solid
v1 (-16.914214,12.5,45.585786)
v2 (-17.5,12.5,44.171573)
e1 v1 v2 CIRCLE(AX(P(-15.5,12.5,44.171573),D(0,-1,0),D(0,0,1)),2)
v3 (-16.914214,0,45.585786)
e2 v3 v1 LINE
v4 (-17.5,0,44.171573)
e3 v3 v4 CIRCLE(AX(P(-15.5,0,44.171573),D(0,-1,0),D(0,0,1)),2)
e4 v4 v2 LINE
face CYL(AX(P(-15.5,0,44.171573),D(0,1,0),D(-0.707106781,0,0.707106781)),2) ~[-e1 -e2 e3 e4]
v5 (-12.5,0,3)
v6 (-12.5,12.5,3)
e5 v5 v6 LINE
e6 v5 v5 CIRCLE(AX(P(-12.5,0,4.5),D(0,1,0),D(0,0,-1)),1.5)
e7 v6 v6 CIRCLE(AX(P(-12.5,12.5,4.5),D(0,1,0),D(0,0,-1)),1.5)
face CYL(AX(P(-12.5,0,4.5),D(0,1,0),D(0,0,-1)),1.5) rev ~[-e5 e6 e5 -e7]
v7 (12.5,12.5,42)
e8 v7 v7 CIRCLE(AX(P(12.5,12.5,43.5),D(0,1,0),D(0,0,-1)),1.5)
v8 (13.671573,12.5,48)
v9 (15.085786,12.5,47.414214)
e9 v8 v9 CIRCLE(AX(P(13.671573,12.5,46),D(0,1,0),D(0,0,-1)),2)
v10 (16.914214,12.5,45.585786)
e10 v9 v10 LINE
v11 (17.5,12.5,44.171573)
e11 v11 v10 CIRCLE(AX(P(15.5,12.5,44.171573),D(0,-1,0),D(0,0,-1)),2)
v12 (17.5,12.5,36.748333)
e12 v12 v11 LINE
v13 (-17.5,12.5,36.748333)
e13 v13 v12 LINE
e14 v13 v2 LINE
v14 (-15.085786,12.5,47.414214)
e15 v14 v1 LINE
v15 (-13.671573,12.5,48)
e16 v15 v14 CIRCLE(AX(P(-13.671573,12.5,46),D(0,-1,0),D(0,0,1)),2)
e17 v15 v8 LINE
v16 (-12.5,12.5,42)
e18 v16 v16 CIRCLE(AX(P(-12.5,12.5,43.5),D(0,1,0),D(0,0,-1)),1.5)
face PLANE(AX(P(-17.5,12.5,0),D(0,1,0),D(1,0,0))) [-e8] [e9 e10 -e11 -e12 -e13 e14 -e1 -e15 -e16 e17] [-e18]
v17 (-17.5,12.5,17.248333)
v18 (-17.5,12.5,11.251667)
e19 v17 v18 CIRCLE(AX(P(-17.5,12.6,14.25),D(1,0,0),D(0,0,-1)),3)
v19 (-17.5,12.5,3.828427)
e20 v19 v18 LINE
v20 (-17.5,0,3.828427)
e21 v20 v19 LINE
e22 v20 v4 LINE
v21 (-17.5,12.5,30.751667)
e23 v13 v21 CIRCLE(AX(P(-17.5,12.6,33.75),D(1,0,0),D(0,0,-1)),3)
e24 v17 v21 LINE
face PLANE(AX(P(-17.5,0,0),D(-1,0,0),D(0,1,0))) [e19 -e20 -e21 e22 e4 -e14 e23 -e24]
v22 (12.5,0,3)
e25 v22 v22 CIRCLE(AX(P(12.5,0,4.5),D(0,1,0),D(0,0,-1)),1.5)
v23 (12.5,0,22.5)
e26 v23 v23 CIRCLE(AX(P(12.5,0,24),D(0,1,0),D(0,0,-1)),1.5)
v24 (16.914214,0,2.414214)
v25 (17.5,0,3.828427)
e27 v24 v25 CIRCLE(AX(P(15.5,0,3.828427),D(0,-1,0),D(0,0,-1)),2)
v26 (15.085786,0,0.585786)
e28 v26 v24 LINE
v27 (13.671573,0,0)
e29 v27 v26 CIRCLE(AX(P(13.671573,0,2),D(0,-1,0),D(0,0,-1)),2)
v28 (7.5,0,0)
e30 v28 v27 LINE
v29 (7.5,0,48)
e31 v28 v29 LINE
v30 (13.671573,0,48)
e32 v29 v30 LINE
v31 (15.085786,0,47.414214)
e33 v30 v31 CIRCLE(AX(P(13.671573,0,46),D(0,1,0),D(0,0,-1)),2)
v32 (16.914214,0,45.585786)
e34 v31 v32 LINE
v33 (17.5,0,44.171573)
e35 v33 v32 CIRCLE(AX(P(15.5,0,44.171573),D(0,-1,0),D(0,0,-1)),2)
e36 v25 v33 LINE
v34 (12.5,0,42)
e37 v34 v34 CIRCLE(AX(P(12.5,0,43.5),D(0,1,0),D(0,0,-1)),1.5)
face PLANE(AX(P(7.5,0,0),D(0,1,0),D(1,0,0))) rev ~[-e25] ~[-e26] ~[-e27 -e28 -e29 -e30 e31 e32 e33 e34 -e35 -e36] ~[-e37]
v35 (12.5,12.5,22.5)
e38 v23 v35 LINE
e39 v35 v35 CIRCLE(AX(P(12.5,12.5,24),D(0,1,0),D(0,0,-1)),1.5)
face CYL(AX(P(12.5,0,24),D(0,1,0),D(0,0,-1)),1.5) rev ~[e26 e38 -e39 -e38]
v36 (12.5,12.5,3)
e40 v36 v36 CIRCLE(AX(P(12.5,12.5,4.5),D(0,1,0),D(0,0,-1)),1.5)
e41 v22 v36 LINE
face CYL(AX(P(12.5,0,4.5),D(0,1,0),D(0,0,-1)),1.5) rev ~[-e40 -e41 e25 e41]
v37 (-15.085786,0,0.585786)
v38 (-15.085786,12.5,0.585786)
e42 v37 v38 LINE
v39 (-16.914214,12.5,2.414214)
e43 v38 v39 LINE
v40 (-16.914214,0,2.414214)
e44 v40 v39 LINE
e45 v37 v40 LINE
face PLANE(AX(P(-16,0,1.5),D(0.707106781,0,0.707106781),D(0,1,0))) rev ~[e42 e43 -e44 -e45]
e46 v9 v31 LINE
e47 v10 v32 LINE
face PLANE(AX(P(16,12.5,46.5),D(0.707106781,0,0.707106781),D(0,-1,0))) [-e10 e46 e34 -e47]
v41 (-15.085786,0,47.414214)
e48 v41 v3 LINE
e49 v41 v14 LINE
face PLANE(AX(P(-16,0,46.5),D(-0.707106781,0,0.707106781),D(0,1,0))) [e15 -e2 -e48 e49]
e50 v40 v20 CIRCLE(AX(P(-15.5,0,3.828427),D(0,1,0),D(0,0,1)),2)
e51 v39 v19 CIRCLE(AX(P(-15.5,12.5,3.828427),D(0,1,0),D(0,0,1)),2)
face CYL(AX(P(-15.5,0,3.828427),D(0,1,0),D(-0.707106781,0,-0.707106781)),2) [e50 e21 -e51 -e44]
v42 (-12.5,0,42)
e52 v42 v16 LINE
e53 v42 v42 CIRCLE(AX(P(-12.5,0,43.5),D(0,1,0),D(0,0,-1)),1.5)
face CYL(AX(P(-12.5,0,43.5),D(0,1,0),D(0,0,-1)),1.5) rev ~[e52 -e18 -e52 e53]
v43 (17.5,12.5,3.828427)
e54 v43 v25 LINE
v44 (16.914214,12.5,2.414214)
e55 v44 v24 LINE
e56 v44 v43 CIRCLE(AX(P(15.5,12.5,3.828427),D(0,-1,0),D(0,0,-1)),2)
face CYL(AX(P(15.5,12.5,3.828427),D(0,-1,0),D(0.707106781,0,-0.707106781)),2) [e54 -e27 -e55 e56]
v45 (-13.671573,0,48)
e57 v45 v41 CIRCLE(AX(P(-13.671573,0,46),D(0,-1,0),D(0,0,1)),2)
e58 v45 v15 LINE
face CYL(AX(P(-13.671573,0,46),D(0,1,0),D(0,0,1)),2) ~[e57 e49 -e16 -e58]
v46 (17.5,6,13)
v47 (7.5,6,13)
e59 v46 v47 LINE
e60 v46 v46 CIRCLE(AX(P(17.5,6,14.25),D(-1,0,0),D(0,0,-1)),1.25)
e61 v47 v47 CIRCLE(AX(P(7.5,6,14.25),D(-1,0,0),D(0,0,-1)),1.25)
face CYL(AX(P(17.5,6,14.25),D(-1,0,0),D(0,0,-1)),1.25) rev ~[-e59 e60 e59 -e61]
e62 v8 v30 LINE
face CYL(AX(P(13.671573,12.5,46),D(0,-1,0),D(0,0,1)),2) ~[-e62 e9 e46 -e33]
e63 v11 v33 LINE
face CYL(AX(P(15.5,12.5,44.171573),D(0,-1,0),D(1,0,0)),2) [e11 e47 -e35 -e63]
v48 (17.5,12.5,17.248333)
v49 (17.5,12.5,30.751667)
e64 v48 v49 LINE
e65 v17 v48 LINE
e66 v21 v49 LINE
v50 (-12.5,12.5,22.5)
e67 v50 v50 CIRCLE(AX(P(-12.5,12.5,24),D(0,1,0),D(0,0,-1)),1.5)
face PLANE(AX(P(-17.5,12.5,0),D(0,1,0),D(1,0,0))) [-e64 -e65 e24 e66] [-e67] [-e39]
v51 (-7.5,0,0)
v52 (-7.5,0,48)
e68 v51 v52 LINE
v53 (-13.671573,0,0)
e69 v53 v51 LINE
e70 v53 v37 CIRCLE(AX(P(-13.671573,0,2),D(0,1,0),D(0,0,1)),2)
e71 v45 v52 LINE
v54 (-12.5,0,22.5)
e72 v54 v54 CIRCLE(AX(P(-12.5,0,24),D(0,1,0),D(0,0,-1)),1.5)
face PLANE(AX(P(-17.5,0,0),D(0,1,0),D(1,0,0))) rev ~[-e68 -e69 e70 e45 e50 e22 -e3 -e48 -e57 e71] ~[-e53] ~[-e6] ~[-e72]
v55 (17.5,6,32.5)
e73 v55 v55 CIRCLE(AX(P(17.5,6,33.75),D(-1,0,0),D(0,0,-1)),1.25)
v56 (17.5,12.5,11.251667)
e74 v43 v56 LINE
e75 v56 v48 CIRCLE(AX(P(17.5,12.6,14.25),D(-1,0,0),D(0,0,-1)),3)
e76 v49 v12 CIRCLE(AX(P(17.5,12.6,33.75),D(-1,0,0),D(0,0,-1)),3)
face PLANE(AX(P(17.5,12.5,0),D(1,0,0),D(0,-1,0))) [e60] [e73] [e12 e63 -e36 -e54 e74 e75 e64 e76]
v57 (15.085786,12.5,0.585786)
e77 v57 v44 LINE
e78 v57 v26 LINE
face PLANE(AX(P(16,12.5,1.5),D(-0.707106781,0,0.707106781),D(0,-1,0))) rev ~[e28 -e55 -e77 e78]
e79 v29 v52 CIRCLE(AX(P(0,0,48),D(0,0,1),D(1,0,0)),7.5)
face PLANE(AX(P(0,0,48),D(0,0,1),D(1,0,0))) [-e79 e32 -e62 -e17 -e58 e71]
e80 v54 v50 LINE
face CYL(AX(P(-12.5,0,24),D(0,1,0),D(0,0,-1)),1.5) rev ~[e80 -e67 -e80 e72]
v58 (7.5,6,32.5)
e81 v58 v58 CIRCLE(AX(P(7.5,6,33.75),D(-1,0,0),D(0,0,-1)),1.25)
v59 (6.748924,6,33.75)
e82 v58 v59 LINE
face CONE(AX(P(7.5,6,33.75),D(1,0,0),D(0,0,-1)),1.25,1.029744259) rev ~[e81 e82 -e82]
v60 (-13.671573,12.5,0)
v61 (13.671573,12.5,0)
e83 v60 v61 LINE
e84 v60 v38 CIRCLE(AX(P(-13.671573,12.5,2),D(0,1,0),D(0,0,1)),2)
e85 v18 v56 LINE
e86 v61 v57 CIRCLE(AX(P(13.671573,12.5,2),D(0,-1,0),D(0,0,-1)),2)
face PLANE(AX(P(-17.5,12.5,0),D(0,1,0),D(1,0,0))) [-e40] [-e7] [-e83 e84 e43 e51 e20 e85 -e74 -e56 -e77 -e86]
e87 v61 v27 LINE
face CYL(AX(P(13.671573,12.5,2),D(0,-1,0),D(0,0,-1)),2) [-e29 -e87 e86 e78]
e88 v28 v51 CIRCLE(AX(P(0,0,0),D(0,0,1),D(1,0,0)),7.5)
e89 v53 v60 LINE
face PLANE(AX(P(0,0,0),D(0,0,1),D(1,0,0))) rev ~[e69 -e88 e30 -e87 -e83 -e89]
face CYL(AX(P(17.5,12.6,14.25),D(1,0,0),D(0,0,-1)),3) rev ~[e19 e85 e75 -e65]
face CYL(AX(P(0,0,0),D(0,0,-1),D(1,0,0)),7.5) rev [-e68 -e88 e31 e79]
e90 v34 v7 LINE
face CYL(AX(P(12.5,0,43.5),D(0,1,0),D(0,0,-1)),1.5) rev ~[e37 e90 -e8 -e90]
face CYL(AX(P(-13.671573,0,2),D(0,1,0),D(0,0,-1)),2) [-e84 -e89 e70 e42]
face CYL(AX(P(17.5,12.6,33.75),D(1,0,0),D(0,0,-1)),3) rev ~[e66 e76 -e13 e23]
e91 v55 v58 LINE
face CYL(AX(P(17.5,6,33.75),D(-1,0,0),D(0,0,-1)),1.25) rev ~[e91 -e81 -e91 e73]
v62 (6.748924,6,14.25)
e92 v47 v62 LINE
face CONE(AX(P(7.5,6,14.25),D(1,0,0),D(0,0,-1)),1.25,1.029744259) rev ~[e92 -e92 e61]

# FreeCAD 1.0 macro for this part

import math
import FreeCAD as App
import Part
import Sketcher
from FreeCAD import Vector
Q = App.Units.Quantity


def edges_at(feature, points):
    """Names of the edges that pass closest to the given points."""
    edges = feature.Shape.Edges
    near = lambda p: min(range(len(edges)), key=lambda i: edges[i].distToShape(Part.Vertex(*p))[0])
    return sorted({f"Edge{near(p) + 1}" for p in points})

doc = App.newDocument("Part")
body = doc.addObject("PartDesign::Body", "Body")

sketch1 = body.newObject("Sketcher::SketchObject", "Sketch")
sketch1.AttachmentSupport = (doc.getObject("XY_Plane"), [""])
sketch1.MapMode = "FlatFace"
sketch1.addGeometry([
    Part.ArcOfCircle(Part.Circle(Vector(0, 0, 0), Vector(0, 0, 1), 8), math.radians(0), math.radians(180)),
    Part.LineSegment(Vector(8, 0, 0), Vector(18, 0, 0)),
    Part.LineSegment(Vector(18, 0, 0), Vector(18, 12, 0)),
    Part.LineSegment(Vector(18, 12, 0), Vector(-18, 12, 0)),
    Part.LineSegment(Vector(-18, 12, 0), Vector(-18, 0, 0)),
    Part.LineSegment(Vector(-18, 0, 0), Vector(-8, 0, 0)),
], False)
sketch1.addConstraint([
    Sketcher.Constraint("Coincident", 0, 1, 1, 1),
    Sketcher.Constraint("Coincident", 1, 2, 2, 1),
    Sketcher.Constraint("Coincident", 2, 2, 3, 1),
    Sketcher.Constraint("Coincident", 3, 2, 4, 1),
    Sketcher.Constraint("Coincident", 4, 2, 5, 1),
    Sketcher.Constraint("Coincident", 5, 2, 0, 2),
    Sketcher.Constraint("Horizontal", 1),
    Sketcher.Constraint("Vertical", 2),
    Sketcher.Constraint("Horizontal", 3),
    Sketcher.Constraint("Vertical", 4),
    Sketcher.Constraint("Horizontal", 5),
    Sketcher.Constraint("Coincident", 0, 3, -1, 1),
    Sketcher.Constraint("Symmetric", 1, 2, 4, 2, -1, 1),
    Sketcher.Constraint("PointOnObject", 0, 1, -1),
    Sketcher.Constraint("Radius", 0, Q("7.5 mm")),
    Sketcher.Constraint("DistanceX", 1, 1, 1, 2, Q("10 mm")),
    Sketcher.Constraint("DistanceY", 2, 1, 2, 2, Q("12.5 mm")),
])
pad1 = body.newObject("PartDesign::Pad", "Pad")
pad1.Profile = sketch1
pad1.Length = 48

sketch2 = body.newObject("Sketcher::SketchObject", "Sketch001")
sketch2.AttachmentSupport = (doc.getObject("XZ_Plane"), [""])
sketch2.MapMode = "FlatFace"
sketch2.addGeometry([
    Part.Circle(Vector(12.5, 4.5, 0), Vector(0, 0, 1), 1.5),
    Part.Circle(Vector(12.5, 24, 0), Vector(0, 0, 1), 1.5),
    Part.Circle(Vector(12.5, 43.5, 0), Vector(0, 0, 1), 1.5),
    Part.Circle(Vector(-12.5, 43.5, 0), Vector(0, 0, 1), 1.5),
    Part.Circle(Vector(-12.5, 4.5, 0), Vector(0, 0, 1), 1.5),
    Part.Circle(Vector(-12.5, 24, 0), Vector(0, 0, 1), 1.5),
], False)
sketch2.addConstraint([
    Sketcher.Constraint("Equal", 0, 1),
    Sketcher.Constraint("Equal", 1, 2),
    Sketcher.Constraint("Equal", 2, 3),
    Sketcher.Constraint("Equal", 3, 4),
    Sketcher.Constraint("Equal", 4, 5),
    Sketcher.Constraint("Symmetric", 2, 3, 3, 3, -2),
    Sketcher.Constraint("Symmetric", 0, 3, 4, 3, -2),
    Sketcher.Constraint("Symmetric", 1, 3, 5, 3, -2),
    Sketcher.Constraint("Vertical", 0, 3, 1, 3),
    Sketcher.Constraint("Vertical", 1, 3, 2, 3),
    Sketcher.Constraint("Diameter", 0, Q("3 mm")),
    Sketcher.Constraint("DistanceY", -1, 1, 1, 3, Q("24 mm")),
    Sketcher.Constraint("DistanceY", 0, 3, 2, 3, Q("39 mm")),
    Sketcher.Constraint("DistanceX", 3, 3, 2, 3, Q("25 mm")),
    Sketcher.Constraint("DistanceY", -1, 1, 0, 3, Q("4.5 mm")),
])
doc.recompute()
hole = body.newObject("PartDesign::Hole", "Hole")
hole.Profile = sketch2
hole.ThreadType = "None"
hole.Diameter = 3
hole.DepthType = "ThroughAll"

sketch3 = body.newObject("Sketcher::SketchObject", "Sketch002")
sketch3.AttachmentSupport = (doc.getObject("YZ_Plane"), [""])
sketch3.MapMode = "FlatFace"
sketch3.AttachmentOffset = App.Placement(Vector(0, 0, 17.5), App.Rotation())
sketch3.addGeometry([
    Part.Circle(Vector(12.6, 14.2, 0), Vector(0, 0, 1), 3),
    Part.Circle(Vector(12.6, 33.8, 0), Vector(0, 0, 1), 3),
], False)
sketch3.addConstraint([
    Sketcher.Constraint("Equal", 0, 1),
    Sketcher.Constraint("Vertical", 0, 3, 1, 3),
    Sketcher.Constraint("Diameter", 0, Q("6 mm")),
    Sketcher.Constraint("DistanceY", -1, 1, 0, 3, Q("14.25 mm")),
    Sketcher.Constraint("DistanceX", -1, 1, 0, 3, Q("12.6 mm")),
    Sketcher.Constraint("DistanceY", 0, 3, 1, 3, Q("19.5 mm")),
])
pocket1 = body.newObject("PartDesign::Pocket", "Pocket")
pocket1.Profile = sketch3
pocket1.Type = "ThroughAll"
doc.recompute()

chamfer = body.newObject("PartDesign::Chamfer", "Chamfer")
chamfer.Base = (pocket1, edges_at(pocket1, [
    (17.5, 6.25, 48),
    (-17.5, 6.25, 48),
    (17.5, 6.25, 0),
    (-17.5, 6.25, 0),
]))
chamfer.Size = 3
doc.recompute()

fillet = body.newObject("PartDesign::Fillet", "Fillet")
fillet.Base = (chamfer, edges_at(chamfer, [
    (17.5, 6.25, 45),
    (14.5, 6.25, 48),
    (-14.5, 6.25, 48),
    (-17.5, 6.25, 45),
    (-17.5, 6.25, 3),
    (-14.5, 6.25, 0),
    (14.5, 6.25, 0),
    (17.5, 6.25, 3),
]))
fillet.Radius = 2

sketch4 = body.newObject("Sketcher::SketchObject", "Sketch003")
sketch4.AttachmentSupport = (doc.getObject("YZ_Plane"), [""])
sketch4.MapMode = "FlatFace"
sketch4.AttachmentOffset = App.Placement(Vector(0, 0, 17.5), App.Rotation())
sketch4.addGeometry([
    Part.Circle(Vector(6, 33.8, 0), Vector(0, 0, 1), 1.2),
    Part.Circle(Vector(6, 14.2, 0), Vector(0, 0, 1), 1.2),
], False)
sketch4.addConstraint([
    Sketcher.Constraint("Equal", 0, 1),
    Sketcher.Constraint("Vertical", 0, 3, 1, 3),
    Sketcher.Constraint("Diameter", 0, Q("2.5 mm")),
    Sketcher.Constraint("DistanceX", -1, 1, 0, 3, Q("6 mm")),
    Sketcher.Constraint("DistanceY", 1, 3, 0, 3, Q("19.5 mm")),
    Sketcher.Constraint("DistanceY", -1, 1, 0, 3, Q("33.75 mm")),
])
doc.recompute()
hole2 = body.newObject("PartDesign::Hole", "Hole001")
hole2.Profile = sketch4
hole2.ThreadType = "None"
hole2.Diameter = 2.5
hole2.DepthType = "Dimension"
hole2.Depth = 10
hole2.DrillPoint = "Angled"
hole2.DrillPointAngle = 118

doc.recompute()
